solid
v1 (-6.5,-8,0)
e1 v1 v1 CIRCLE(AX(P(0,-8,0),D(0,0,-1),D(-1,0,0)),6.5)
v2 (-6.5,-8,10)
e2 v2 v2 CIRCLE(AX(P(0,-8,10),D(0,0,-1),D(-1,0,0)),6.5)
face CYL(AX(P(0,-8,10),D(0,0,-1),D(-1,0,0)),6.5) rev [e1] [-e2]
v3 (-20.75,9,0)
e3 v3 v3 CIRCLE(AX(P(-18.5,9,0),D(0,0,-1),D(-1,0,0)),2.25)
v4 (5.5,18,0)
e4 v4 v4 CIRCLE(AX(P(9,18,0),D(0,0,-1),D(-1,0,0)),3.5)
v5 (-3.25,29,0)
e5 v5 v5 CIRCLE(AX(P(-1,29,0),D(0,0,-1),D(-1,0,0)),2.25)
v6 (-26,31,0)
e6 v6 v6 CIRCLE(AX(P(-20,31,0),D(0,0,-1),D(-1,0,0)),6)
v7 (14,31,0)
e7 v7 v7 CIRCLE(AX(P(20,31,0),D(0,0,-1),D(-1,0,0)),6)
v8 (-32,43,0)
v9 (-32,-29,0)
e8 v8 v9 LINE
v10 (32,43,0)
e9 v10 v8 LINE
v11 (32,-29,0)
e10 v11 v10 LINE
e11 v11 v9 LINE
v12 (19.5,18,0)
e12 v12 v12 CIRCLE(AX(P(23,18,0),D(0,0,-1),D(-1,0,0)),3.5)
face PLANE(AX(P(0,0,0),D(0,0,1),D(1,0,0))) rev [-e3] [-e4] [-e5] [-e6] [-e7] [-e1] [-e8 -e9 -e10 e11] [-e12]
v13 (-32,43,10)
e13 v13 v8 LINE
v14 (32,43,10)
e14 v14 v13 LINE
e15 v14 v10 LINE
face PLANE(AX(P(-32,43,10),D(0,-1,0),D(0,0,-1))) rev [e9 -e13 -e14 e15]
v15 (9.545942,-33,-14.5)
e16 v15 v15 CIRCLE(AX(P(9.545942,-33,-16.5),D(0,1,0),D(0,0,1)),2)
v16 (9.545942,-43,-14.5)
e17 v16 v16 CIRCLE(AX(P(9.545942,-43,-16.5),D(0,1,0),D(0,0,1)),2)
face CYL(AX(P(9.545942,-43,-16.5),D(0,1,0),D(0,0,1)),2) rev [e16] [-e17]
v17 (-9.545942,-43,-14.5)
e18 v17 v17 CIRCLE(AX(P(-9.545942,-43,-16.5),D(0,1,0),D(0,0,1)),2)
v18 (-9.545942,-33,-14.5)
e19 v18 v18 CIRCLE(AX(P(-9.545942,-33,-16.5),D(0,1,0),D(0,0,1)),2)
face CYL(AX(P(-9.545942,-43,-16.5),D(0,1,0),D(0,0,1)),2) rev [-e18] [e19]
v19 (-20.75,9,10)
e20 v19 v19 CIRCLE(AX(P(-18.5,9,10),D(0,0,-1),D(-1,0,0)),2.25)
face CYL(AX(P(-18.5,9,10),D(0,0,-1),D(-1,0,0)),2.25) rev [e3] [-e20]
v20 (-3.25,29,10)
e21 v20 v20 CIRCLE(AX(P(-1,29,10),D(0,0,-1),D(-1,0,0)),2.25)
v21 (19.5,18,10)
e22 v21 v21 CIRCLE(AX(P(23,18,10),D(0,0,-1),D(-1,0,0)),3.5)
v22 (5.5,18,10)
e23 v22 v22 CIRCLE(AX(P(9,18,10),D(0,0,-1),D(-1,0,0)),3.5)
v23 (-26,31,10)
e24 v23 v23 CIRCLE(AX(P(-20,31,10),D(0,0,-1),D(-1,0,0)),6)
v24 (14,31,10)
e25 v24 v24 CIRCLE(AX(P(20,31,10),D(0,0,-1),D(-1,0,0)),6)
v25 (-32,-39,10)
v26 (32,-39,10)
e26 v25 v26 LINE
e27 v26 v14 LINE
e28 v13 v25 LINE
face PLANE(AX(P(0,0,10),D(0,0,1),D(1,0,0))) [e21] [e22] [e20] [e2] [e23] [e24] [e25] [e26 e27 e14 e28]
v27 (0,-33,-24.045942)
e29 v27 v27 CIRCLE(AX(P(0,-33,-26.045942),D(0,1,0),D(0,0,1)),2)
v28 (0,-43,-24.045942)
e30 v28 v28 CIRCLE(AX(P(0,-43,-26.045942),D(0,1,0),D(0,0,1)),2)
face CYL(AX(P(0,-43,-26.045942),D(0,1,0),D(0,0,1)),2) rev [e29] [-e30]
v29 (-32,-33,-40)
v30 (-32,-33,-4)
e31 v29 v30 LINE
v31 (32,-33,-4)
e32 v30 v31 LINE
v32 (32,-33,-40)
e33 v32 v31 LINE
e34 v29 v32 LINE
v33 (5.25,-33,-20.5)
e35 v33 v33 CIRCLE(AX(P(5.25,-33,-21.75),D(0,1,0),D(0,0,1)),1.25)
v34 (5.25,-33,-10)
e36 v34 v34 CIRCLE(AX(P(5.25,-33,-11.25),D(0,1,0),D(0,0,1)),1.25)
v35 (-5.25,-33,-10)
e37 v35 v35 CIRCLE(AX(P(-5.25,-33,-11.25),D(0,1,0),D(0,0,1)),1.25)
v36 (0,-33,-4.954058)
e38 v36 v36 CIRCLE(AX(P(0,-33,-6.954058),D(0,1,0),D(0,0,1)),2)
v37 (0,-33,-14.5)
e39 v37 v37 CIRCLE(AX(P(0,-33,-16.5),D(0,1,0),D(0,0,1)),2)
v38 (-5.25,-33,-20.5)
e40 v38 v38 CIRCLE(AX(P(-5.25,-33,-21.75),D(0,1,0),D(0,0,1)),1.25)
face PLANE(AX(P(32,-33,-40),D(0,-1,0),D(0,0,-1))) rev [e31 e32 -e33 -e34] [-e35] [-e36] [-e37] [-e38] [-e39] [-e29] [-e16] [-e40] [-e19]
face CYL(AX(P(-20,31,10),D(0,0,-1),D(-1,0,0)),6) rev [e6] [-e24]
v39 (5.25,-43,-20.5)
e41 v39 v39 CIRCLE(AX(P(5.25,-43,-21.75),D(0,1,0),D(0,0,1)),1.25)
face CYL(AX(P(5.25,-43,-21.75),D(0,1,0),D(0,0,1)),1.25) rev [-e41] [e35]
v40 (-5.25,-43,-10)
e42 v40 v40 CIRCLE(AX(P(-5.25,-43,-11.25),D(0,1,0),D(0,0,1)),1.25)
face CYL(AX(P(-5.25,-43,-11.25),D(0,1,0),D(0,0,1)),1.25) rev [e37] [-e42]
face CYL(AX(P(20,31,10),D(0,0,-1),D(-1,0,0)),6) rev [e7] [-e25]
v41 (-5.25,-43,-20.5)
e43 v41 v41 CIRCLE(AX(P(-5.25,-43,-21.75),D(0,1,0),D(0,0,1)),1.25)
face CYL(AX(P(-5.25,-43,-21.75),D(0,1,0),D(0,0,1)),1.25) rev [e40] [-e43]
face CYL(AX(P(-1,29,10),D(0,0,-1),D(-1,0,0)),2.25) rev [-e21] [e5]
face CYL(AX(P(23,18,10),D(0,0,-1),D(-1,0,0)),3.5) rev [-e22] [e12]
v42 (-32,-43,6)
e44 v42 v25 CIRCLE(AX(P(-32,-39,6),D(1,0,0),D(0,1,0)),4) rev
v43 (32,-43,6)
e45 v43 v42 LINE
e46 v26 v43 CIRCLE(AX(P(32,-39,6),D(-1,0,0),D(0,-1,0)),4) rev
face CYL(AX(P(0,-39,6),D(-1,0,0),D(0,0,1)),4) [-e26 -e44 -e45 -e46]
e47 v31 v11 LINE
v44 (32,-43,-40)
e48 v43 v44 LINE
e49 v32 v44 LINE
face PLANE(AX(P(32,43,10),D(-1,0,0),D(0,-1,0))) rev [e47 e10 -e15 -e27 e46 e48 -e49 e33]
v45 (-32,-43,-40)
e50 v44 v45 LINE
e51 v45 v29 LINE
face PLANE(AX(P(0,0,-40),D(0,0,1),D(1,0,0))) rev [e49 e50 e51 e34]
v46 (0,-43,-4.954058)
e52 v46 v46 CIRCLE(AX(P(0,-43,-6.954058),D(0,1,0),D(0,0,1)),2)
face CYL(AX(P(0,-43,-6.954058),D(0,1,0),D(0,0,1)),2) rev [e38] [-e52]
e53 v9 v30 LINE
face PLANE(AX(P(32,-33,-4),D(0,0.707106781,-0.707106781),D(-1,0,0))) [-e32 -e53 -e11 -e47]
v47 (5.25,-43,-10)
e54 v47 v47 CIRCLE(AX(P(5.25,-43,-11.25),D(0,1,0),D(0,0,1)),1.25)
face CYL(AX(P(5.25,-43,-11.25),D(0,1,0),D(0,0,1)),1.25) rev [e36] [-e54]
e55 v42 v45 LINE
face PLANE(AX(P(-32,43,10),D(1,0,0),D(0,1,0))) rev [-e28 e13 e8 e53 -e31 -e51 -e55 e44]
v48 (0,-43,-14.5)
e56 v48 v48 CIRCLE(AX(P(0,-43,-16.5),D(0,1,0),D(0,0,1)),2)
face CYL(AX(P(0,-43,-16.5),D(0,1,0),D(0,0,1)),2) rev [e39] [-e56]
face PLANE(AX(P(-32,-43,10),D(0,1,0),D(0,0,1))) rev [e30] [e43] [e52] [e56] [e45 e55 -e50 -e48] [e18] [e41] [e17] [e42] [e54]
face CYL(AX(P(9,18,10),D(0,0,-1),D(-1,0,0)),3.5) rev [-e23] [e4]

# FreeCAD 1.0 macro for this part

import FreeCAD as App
import Part
import Sketcher
from FreeCAD import Vector


def edges_at(feature, points):
    """Names of the edges that pass closest to the given points."""
    edges = feature.Shape.Edges
    near = lambda p: min(range(len(edges)), key=lambda i: edges[i].distToShape(Part.Vertex(*p))[0])
    return sorted({f"Edge{near(p) + 1}" for p in points})


def add_polygon(sketch, points):
    """Adds a closed chain of lines whose ends are joined by coincident constraints."""
    first, n = sketch.GeometryCount, len(points)
    for a, b in zip(points, points[1:] + points[:1]):
        sketch.addGeometry(Part.LineSegment(App.Vector(*a, 0), App.Vector(*b, 0)), False)
    for i in range(n):
        sketch.addConstraint(Sketcher.Constraint("Coincident", first + i, 2, first + (i + 1) % n, 1))

doc = App.newDocument("Part")
body = doc.addObject("PartDesign::Body", "Body")

# Sketch on XY plane
sketch1 = doc.addObject("Sketcher::SketchObject", "Sketch")
body.addObject(sketch1)
sketch1.AttachmentSupport = (doc.XY_Plane, [""])
sketch1.MapMode = "FlatFace"
add_polygon(sketch1, [(-32, 43), (-32, -43), (32, -43), (32, 43)])  # lines 0-3
sketch1.addConstraint(Sketcher.Constraint("Vertical", 0))
sketch1.addConstraint(Sketcher.Constraint("Horizontal", 1))
sketch1.addConstraint(Sketcher.Constraint("Vertical", 2))
sketch1.addConstraint(Sketcher.Constraint("Horizontal", 3))
sketch1.addConstraint(Sketcher.Constraint("Symmetric", 0, 2, 2, 2, -1, 1))
sketch1.addConstraint(Sketcher.Constraint("DistanceX", 1, 1, 1, 2, 64.0))
sketch1.addConstraint(Sketcher.Constraint("DistanceY", 0, 2, 0, 1, 86.0))
pad1 = doc.addObject("PartDesign::Pad", "Pad")
body.addObject(pad1)
pad1.Profile = sketch1
pad1.Length = 10

# Sketch on XY plane
sketch2 = doc.addObject("Sketcher::SketchObject", "Sketch001")
body.addObject(sketch2)
sketch2.AttachmentSupport = (doc.XY_Plane, [""])
sketch2.MapMode = "FlatFace"
add_polygon(sketch2, [(32, -33), (32, -43), (-32, -43), (-32, -33)])  # lines 0-3
sketch2.addConstraint(Sketcher.Constraint("Vertical", 0))
sketch2.addConstraint(Sketcher.Constraint("Horizontal", 1))
sketch2.addConstraint(Sketcher.Constraint("Vertical", 2))
sketch2.addConstraint(Sketcher.Constraint("Horizontal", 3))
sketch2.addConstraint(Sketcher.Constraint("DistanceX", 1, 2, 1, 1, 64.0))
sketch2.addConstraint(Sketcher.Constraint("DistanceY", 0, 2, 0, 1, 10.0))
sketch2.addConstraint(Sketcher.Constraint("DistanceX", -1, 1, 0, 2, 32.0))
sketch2.addConstraint(Sketcher.Constraint("DistanceY", 0, 2, -1, 1, 43.0))
pad2 = doc.addObject("PartDesign::Pad", "Pad001")
body.addObject(pad2)
pad2.Profile = sketch2
pad2.Length = 40
pad2.Reversed = True

# Sketch on XY plane
sketch3 = doc.addObject("Sketcher::SketchObject", "Sketch002")
body.addObject(sketch3)
sketch3.AttachmentSupport = (doc.XY_Plane, [""])
sketch3.MapMode = "FlatFace"
sketch3.addGeometry(Part.Circle(Vector(-20, 31, 0), Vector(0, 0, 1), 6), False)
sketch3.addGeometry(Part.Circle(Vector(-1, 29, 0), Vector(0, 0, 1), 2.25), False)
sketch3.addGeometry(Part.Circle(Vector(20, 31, 0), Vector(0, 0, 1), 6), False)
sketch3.addGeometry(Part.Circle(Vector(9, 18, 0), Vector(0, 0, 1), 3.5), False)
sketch3.addGeometry(Part.Circle(Vector(23, 18, 0), Vector(0, 0, 1), 3.5), False)
sketch3.addGeometry(Part.Circle(Vector(-18.5, 9, 0), Vector(0, 0, 1), 2.25), False)
sketch3.addGeometry(Part.Circle(Vector(0, -8, 0), Vector(0, 0, 1), 6.5), False)
sketch3.addConstraint(Sketcher.Constraint("Equal", 0, 2))
sketch3.addConstraint(Sketcher.Constraint("Equal", 3, 4))
sketch3.addConstraint(Sketcher.Constraint("Equal", 1, 5))
sketch3.addConstraint(Sketcher.Constraint("Symmetric", 0, 3, 2, 3, -2))
sketch3.addConstraint(Sketcher.Constraint("PointOnObject", 6, 3, -2))
sketch3.addConstraint(Sketcher.Constraint("Horizontal", 3, 3, 4, 3))
sketch3.addConstraint(Sketcher.Constraint("Diameter", 0, 12.0))
sketch3.addConstraint(Sketcher.Constraint("Diameter", 3, 7.0))
sketch3.addConstraint(Sketcher.Constraint("Diameter", 6, 13.0))
sketch3.addConstraint(Sketcher.Constraint("Diameter", 1, 4.5))
sketch3.addConstraint(Sketcher.Constraint("DistanceX", 0, 3, -1, 1, 20.0))
sketch3.addConstraint(Sketcher.Constraint("DistanceY", -1, 1, 0, 3, 31.0))
sketch3.addConstraint(Sketcher.Constraint("DistanceX", 1, 3, -1, 1, 1.0))
sketch3.addConstraint(Sketcher.Constraint("DistanceY", -1, 1, 1, 3, 29.0))
sketch3.addConstraint(Sketcher.Constraint("DistanceX", -1, 1, 3, 3, 9.0))
sketch3.addConstraint(Sketcher.Constraint("DistanceY", -1, 1, 3, 3, 18.0))
sketch3.addConstraint(Sketcher.Constraint("DistanceX", -1, 1, 4, 3, 23.0))
sketch3.addConstraint(Sketcher.Constraint("DistanceY", -1, 1, 5, 3, 9.0))
sketch3.addConstraint(Sketcher.Constraint("DistanceY", 6, 3, -1, 1, 8.0))
sketch3.addConstraint(Sketcher.Constraint("DistanceX", 5, 3, -1, 1, 18.5))
pocket1 = doc.addObject("PartDesign::Pocket", "Pocket")
body.addObject(pocket1)
pocket1.Profile = sketch3
pocket1.Type = "ThroughAll"
pocket1.Reversed = True

# Sketch on XZ plane
sketch4 = doc.addObject("Sketcher::SketchObject", "Sketch003")
body.addObject(sketch4)
sketch4.AttachmentSupport = (doc.XZ_Plane, [""])
sketch4.MapMode = "FlatFace"
sketch4.AttachmentOffset = App.Placement(Vector(0, 0, 33), App.Rotation())
sketch4.addGeometry(Part.Circle(Vector(0, -16.5, 0), Vector(0, 0, 1), 2), False)
sketch4.addGeometry(Part.Circle(Vector(5.25, -21.75, 0), Vector(0, 0, 1), 1.25), False)
sketch4.addGeometry(Part.Circle(Vector(5.25, -11.25, 0), Vector(0, 0, 1), 1.25), False)
sketch4.addGeometry(Part.Circle(Vector(-5.25, -11.25, 0), Vector(0, 0, 1), 1.25), False)
sketch4.addGeometry(Part.Circle(Vector(-5.25, -21.75, 0), Vector(0, 0, 1), 1.25), False)
sketch4.addGeometry(Part.Circle(Vector(-9.545942, -16.5, 0), Vector(0, 0, 1), 2), False)
sketch4.addGeometry(Part.Circle(Vector(0, -6.954058, 0), Vector(0, 0, 1), 2), False)
sketch4.addGeometry(Part.Circle(Vector(9.545942, -16.5, 0), Vector(0, 0, 1), 2), False)
sketch4.addGeometry(Part.Circle(Vector(0, -26.045942, 0), Vector(0, 0, 1), 2), False)
sketch4.addConstraint(Sketcher.Constraint("Equal", 1, 2))
sketch4.addConstraint(Sketcher.Constraint("Equal", 2, 3))
sketch4.addConstraint(Sketcher.Constraint("Equal", 3, 4))
sketch4.addConstraint(Sketcher.Constraint("Equal", 0, 5))
sketch4.addConstraint(Sketcher.Constraint("Equal", 5, 6))
sketch4.addConstraint(Sketcher.Constraint("Equal", 6, 7))
sketch4.addConstraint(Sketcher.Constraint("Equal", 7, 8))
sketch4.addConstraint(Sketcher.Constraint("Symmetric", 2, 3, 3, 3, -2))
sketch4.addConstraint(Sketcher.Constraint("Symmetric", 1, 3, 4, 3, -2))
sketch4.addConstraint(Sketcher.Constraint("Symmetric", 5, 3, 7, 3, -2))
sketch4.addConstraint(Sketcher.Constraint("PointOnObject", 0, 3, -2))
sketch4.addConstraint(Sketcher.Constraint("PointOnObject", 6, 3, -2))
sketch4.addConstraint(Sketcher.Constraint("PointOnObject", 8, 3, -2))
sketch4.addConstraint(Sketcher.Constraint("Horizontal", 0, 3, 5, 3))
sketch4.addConstraint(Sketcher.Constraint("Vertical", 1, 3, 2, 3))
sketch4.addConstraint(Sketcher.Constraint("Diameter", 0, 4.0))
sketch4.addConstraint(Sketcher.Constraint("Diameter", 1, 2.5))
sketch4.addConstraint(Sketcher.Constraint("DistanceY", 0, 3, -1, 1, 16.5))
sketch4.addConstraint(Sketcher.Constraint("DistanceY", 1, 3, 2, 3, 10.5))
sketch4.addConstraint(Sketcher.Constraint("DistanceX", 3, 3, 2, 3, 10.5))
sketch4.addConstraint(Sketcher.Constraint("DistanceY", 1, 3, -1, 1, 21.75))
sketch4.addConstraint(Sketcher.Constraint("DistanceX", 5, 3, -1, 1, 9.545942))
sketch4.addConstraint(Sketcher.Constraint("DistanceY", 6, 3, -1, 1, 6.954058))
sketch4.addConstraint(Sketcher.Constraint("DistanceY", 8, 3, -1, 1, 26.045942))
pocket2 = doc.addObject("PartDesign::Pocket", "Pocket001")
body.addObject(pocket2)
pocket2.Profile = sketch4
pocket2.Type = "ThroughAll"
pocket2.Reversed = True
doc.recompute()

chamfer = doc.addObject("PartDesign::Chamfer", "Chamfer")
body.addObject(chamfer)
chamfer.Base = (pocket2, edges_at(pocket2, [(0, -33, 0)]))
chamfer.Size = 4
doc.recompute()

fillet = doc.addObject("PartDesign::Fillet", "Fillet")
body.addObject(fillet)
fillet.Base = (chamfer, edges_at(chamfer, [(0, -43, 10)]))
fillet.Radius = 4

doc.recompute()
